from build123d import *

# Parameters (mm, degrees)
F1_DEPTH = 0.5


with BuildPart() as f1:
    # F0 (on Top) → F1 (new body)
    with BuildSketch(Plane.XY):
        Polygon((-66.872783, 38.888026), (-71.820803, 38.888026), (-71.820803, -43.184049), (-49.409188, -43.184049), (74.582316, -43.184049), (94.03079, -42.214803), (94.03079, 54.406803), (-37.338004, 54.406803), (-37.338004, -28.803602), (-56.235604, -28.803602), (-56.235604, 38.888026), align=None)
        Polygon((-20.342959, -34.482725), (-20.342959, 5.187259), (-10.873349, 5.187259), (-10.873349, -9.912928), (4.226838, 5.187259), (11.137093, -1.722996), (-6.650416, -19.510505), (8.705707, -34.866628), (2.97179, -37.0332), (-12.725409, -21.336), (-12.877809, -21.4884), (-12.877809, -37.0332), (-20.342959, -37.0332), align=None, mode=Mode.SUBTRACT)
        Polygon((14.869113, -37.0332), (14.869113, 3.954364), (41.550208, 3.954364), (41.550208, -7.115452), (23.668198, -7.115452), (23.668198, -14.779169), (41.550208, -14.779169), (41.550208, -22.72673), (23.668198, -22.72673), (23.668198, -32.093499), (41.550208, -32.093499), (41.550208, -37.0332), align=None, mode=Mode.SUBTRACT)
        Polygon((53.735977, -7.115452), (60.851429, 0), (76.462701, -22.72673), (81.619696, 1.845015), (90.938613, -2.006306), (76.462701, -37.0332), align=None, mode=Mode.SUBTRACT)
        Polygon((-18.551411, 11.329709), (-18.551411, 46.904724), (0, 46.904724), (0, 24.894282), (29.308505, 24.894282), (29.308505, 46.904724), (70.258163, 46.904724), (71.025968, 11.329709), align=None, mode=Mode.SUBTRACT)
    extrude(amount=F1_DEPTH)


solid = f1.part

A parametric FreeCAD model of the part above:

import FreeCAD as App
import Part
import Sketcher
from FreeCAD import Vector
Q = App.Units.Quantity


def add_polygon(sketch, points):
    """Adds a closed chain of lines whose ends are joined by coincident constraints."""
    first, n = sketch.GeometryCount, len(points)
    for a, b in zip(points, points[1:] + points[:1]):
        sketch.addGeometry(Part.LineSegment(App.Vector(*a, 0), App.Vector(*b, 0)), False)
    for i in range(n):
        sketch.addConstraint(Sketcher.Constraint("Coincident", first + i, 2, first + (i + 1) % n, 1))

doc = App.newDocument("Part")
body = doc.addObject("PartDesign::Body", "Body")

sketch1 = body.newObject("Sketcher::SketchObject", "Sketch")
sketch1.AttachmentSupport = (doc.getObject("XY_Plane"), [""])
sketch1.MapMode = "FlatFace"
add_polygon(sketch1, [(-71.820803, 38.888026), (-71.820803, -43.184049), (74.582316, -43.184049), (94.03079, -42.214803), (94.03079, 54.406803), (-37.338004, 54.406803), (-37.338004, -28.803602), (-56.235604, -28.803602), (-56.235604, 38.888026)])
add_polygon(sketch1, [(41.550208, -37.0332), (14.869113, -37.0332), (14.869113, 3.954364), (41.550208, 3.954364), (41.550208, -7.115452), (23.668198, -7.115452), (23.668198, -14.779169), (41.550208, -14.779169), (41.550208, -22.72673), (23.668198, -22.72673), (23.668198, -32.093499), (41.550208, -32.093499)])
add_polygon(sketch1, [(-20.342959, -37.0332), (-20.342959, 5.187259), (-10.873349, 5.187259), (-10.873349, -9.912928), (4.226838, 5.187259), (11.137093, -1.722996), (-6.650416, -19.510505), (8.705707, -34.866628), (2.97179, -37.0332), (-12.725409, -21.336), (-12.877809, -21.4884), (-12.877809, -37.0332)])
add_polygon(sketch1, [(76.462701, -37.0332), (53.735977, -7.115452), (60.851429, 0), (76.462701, -22.72673), (81.619696, 1.845015), (90.938613, -2.006306)])
add_polygon(sketch1, [(71.025968, 11.329709), (-18.551411, 11.329709), (-18.551411, 46.904724), (0, 46.904724), (0, 24.894282), (29.308505, 24.894282), (29.308505, 46.904724), (70.258163, 46.904724)])
sketch1.addConstraint(Sketcher.Constraint("Vertical", 0))
sketch1.addConstraint(Sketcher.Constraint("Horizontal", 1))
sketch1.addConstraint(Sketcher.Constraint("Vertical", 3))
sketch1.addConstraint(Sketcher.Constraint("Horizontal", 4))
sketch1.addConstraint(Sketcher.Constraint("Vertical", 5))
sketch1.addConstraint(Sketcher.Constraint("Horizontal", 6))
sketch1.addConstraint(Sketcher.Constraint("Vertical", 7))
sketch1.addConstraint(Sketcher.Constraint("Horizontal", 8))
sketch1.addConstraint(Sketcher.Constraint("Horizontal", 9))
sketch1.addConstraint(Sketcher.Constraint("Vertical", 10))
sketch1.addConstraint(Sketcher.Constraint("Horizontal", 11))
sketch1.addConstraint(Sketcher.Constraint("Vertical", 12))
sketch1.addConstraint(Sketcher.Constraint("Horizontal", 13))
sketch1.addConstraint(Sketcher.Constraint("Vertical", 14))
sketch1.addConstraint(Sketcher.Constraint("Horizontal", 15))
sketch1.addConstraint(Sketcher.Constraint("Vertical", 16))
sketch1.addConstraint(Sketcher.Constraint("Horizontal", 17))
sketch1.addConstraint(Sketcher.Constraint("Vertical", 18))
sketch1.addConstraint(Sketcher.Constraint("Horizontal", 19))
sketch1.addConstraint(Sketcher.Constraint("Vertical", 20))
sketch1.addConstraint(Sketcher.Constraint("Vertical", 21))
sketch1.addConstraint(Sketcher.Constraint("Horizontal", 22))
sketch1.addConstraint(Sketcher.Constraint("Vertical", 23))
sketch1.addConstraint(Sketcher.Constraint("Vertical", 31))
sketch1.addConstraint(Sketcher.Constraint("Horizontal", 32))
sketch1.addConstraint(Sketcher.Constraint("Horizontal", 39))
sketch1.addConstraint(Sketcher.Constraint("Vertical", 40))
sketch1.addConstraint(Sketcher.Constraint("Horizontal", 41))
sketch1.addConstraint(Sketcher.Constraint("Vertical", 42))
sketch1.addConstraint(Sketcher.Constraint("Horizontal", 43))
sketch1.addConstraint(Sketcher.Constraint("Vertical", 44))
sketch1.addConstraint(Sketcher.Constraint("Horizontal", 45))
sketch1.addConstraint(Sketcher.Constraint("PointOnObject", 34, 2, -1))
sketch1.addConstraint(Sketcher.Constraint("PointOnObject", 41, 2, -2))
sketch1.addConstraint(Sketcher.Constraint("Perpendicular", 24, 25))
sketch1.addConstraint(Sketcher.Constraint("Perpendicular", 25, 26))
sketch1.addConstraint(Sketcher.Constraint("Perpendicular", 26, 27))
sketch1.addConstraint(Sketcher.Constraint("Parallel", 27, 29))
sketch1.addConstraint(Sketcher.Constraint("Perpendicular", 29, 30))
sketch1.addConstraint(Sketcher.Constraint("Parallel", 30, 34))
sketch1.addConstraint(Sketcher.Constraint("Perpendicular", 37, 38))
sketch1.addConstraint(Sketcher.Constraint("Horizontal", 22, 2, 24, 2))
sketch1.addConstraint(Sketcher.Constraint("Horizontal", 20, 2, 28, 2))
sketch1.addConstraint(Sketcher.Constraint("Horizontal", 28, 2, 31, 2))
sketch1.addConstraint(Sketcher.Constraint("Horizontal", 13, 2, 33, 2))
sketch1.addConstraint(Sketcher.Constraint("Horizontal", 17, 2, 35, 2))
sketch1.addConstraint(Sketcher.Constraint("Horizontal", 32, 2, 38, 2))
sketch1.addConstraint(Sketcher.Constraint("Horizontal", 41, 2, 44, 2))
sketch1.addConstraint(Sketcher.Constraint("Vertical", 12, 2, 15, 2))
sketch1.addConstraint(Sketcher.Constraint("Vertical", 14, 2, 17, 2))
sketch1.addConstraint(Sketcher.Constraint("Vertical", 16, 2, 19, 2))
sketch1.addConstraint(Sketcher.Constraint("Vertical", 35, 2, 38, 2))
sketch1.addConstraint(Sketcher.Constraint("Angle", 24, Q("45 deg")))
sketch1.addConstraint(Sketcher.Constraint("DistanceX", 6, 2, 6, 1, Q("0.744 in")))
sketch1.addConstraint(Sketcher.Constraint("DistanceY", 5, 2, 5, 1, Q("3.2760002 in")))
sketch1.addConstraint(Sketcher.Constraint("DistanceY", 31, 2, 31, 1, Q("0.612 in")))
sketch1.addConstraint(Sketcher.Constraint("DistanceX", 4, 2, -1, 1, Q("1.4700002 in")))
sketch1.addConstraint(Sketcher.Constraint("DistanceY", 29, 2, -1, 1, Q("0.84 in")))
sketch1.addConstraint(Sketcher.Constraint("DistanceY", 2, 2, -1, 1, Q("1.6620001 in")))
sketch1.addConstraint(Sketcher.Constraint("DistanceY", -1, 1, 3, 2, Q("2.1420001 in")))
sketch1.addConstraint(Sketcher.Constraint("DistanceY", 9, 2, -1, 1, Q("1.458 in")))
sketch1.addConstraint(Sketcher.Constraint("DistanceX", 5, 2, 29, 2, Q("0.9689998 in")))
sketch1.addConstraint(Sketcher.Constraint("DistanceX", 8, 2, 8, 1, Q("15.585199 mm")))
sketch1.addConstraint(Sketcher.Constraint("DistanceY", 20, 2, 20, 1, Q("4.939701 mm")))
sketch1.addConstraint(Sketcher.Constraint("Distance", 46, Q("35.5833 mm")))
sketch1.addConstraint(Sketcher.Constraint("DistanceX", 1, 1, 1, 2, Q("146.403119 mm")))
sketch1.addConstraint(Sketcher.Constraint("DistanceX", 13, 2, 13, 1, Q("17.88201 mm")))
sketch1.addConstraint(Sketcher.Constraint("DistanceX", 22, 1, 22, 2, Q("9.46961 mm")))
sketch1.addConstraint(Sketcher.Constraint("DistanceX", 32, 2, 32, 1, Q("7.46515 mm")))
sketch1.addConstraint(Sketcher.Constraint("DistanceX", 39, 2, 39, 1, Q("89.577379 mm")))
sketch1.addConstraint(Sketcher.Constraint("DistanceX", 41, 1, 41, 2, Q("18.551411 mm")))
sketch1.addConstraint(Sketcher.Constraint("DistanceY", 7, 1, 7, 2, Q("67.691628 mm")))
sketch1.addConstraint(Sketcher.Constraint("DistanceY", 16, 2, 16, 1, Q("7.947561 mm")))
sketch1.addConstraint(Sketcher.Constraint("DistanceY", 18, 2, 18, 1, Q("9.366769 mm")))
sketch1.addConstraint(Sketcher.Constraint("DistanceY", 21, 1, 21, 2, Q("42.220459 mm")))
sketch1.addConstraint(Sketcher.Constraint("DistanceX", -1, 1, 13, 2, Q("23.668198 mm")))
sketch1.addConstraint(Sketcher.Constraint("DistanceX", -1, 1, 35, 2, Q("76.462701 mm")))
sketch1.addConstraint(Sketcher.Constraint("Distance", 2, Q("19.472611 mm")))
sketch1.addConstraint(Sketcher.Constraint("Distance", 24, Q("21.354889 mm")))
sketch1.addConstraint(Sketcher.Constraint("Distance", 33, Q("37.570941 mm")))
sketch1.addConstraint(Sketcher.Constraint("Distance", 34, Q("10.062769 mm")))
sketch1.addConstraint(Sketcher.Constraint("DistanceX", 4, 2, 4, 1, Q("131.368794 mm")))
sketch1.addConstraint(Sketcher.Constraint("DistanceX", 9, 2, 9, 1, Q("26.681095 mm")))
sketch1.addConstraint(Sketcher.Constraint("DistanceX", 43, 1, 43, 2, Q("29.308505 mm")))
sketch1.addConstraint(Sketcher.Constraint("DistanceX", 45, 1, 45, 2, Q("40.949658 mm")))
sketch1.addConstraint(Sketcher.Constraint("DistanceY", 10, 1, 10, 2, Q("40.987564 mm")))
sketch1.addConstraint(Sketcher.Constraint("DistanceY", 42, 2, 42, 1, Q("22.010442 mm")))
sketch1.addConstraint(Sketcher.Constraint("DistanceY", -1, 1, 39, 2, Q("11.329709 mm")))
sketch1.addConstraint(Sketcher.Constraint("DistanceX", 25, 2, 10, 2, Q("3.73202 mm")))
sketch1.addConstraint(Sketcher.Constraint("DistanceX", 26, 2, 25, 2, Q("17.787509 mm")))
sketch1.addConstraint(Sketcher.Constraint("DistanceX", 27, 2, 18, 2, Q("14.962491 mm")))
sketch1.addConstraint(Sketcher.Constraint("DistanceX", 33, 2, 36, 2, Q("27.883719 mm")))
sketch1.addConstraint(Sketcher.Constraint("DistanceY", 36, 2, 11, 2, Q("2.109349 mm")))
sketch1.addConstraint(Sketcher.Constraint("DistanceY", 37, 2, 36, 2, Q("3.851321 mm")))
pad1 = body.newObject("PartDesign::Pad", "Pad")
pad1.Profile = sketch1
pad1.Length = 0.5

doc.recompute()
